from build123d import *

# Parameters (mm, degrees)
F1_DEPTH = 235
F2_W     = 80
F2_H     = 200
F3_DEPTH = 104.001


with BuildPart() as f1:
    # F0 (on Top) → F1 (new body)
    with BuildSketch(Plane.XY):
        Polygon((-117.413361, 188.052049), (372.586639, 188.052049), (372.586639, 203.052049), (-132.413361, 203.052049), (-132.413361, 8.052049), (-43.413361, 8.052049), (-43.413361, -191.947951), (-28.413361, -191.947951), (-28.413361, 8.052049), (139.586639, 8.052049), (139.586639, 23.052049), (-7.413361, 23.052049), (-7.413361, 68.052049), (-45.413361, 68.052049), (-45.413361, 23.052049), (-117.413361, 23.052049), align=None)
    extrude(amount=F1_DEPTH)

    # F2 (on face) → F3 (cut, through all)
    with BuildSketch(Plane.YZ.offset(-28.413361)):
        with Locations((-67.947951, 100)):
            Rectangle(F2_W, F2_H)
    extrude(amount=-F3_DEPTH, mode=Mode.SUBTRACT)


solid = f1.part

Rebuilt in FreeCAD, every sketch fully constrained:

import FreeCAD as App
import Part
import Sketcher

V = App.Vector

doc = App.newDocument("Part")
body = doc.addObject("PartDesign::Body", "Body")

sketch1 = doc.addObject("Sketcher::SketchObject", "Sketch")
body.addObject(sketch1)
sketch1.AttachmentSupport = (doc.XY_Plane, [""])
sketch1.MapMode = "FlatFace"
sketch1.addGeometry([
    Part.LineSegment(V(-117, 188, 0), V(373, 188, 0)),
    Part.LineSegment(V(373, 188, 0), V(373, 203, 0)),
    Part.LineSegment(V(373, 203, 0), V(-132, 203, 0)),
    Part.LineSegment(V(-132, 203, 0), V(-132, 8, 0)),
    Part.LineSegment(V(-132, 8, 0), V(-43, 8, 0)),
    Part.LineSegment(V(-43, 8, 0), V(-43, -192, 0)),
    Part.LineSegment(V(-43, -192, 0), V(-28, -192, 0)),
    Part.LineSegment(V(-28, -192, 0), V(-28, 8, 0)),
    Part.LineSegment(V(-28, 8, 0), V(140, 8, 0)),
    Part.LineSegment(V(140, 8, 0), V(140, 23, 0)),
    Part.LineSegment(V(140, 23, 0), V(-7, 23, 0)),
    Part.LineSegment(V(-7, 23, 0), V(-7, 68, 0)),
    Part.LineSegment(V(-7, 68, 0), V(-45, 68, 0)),
    Part.LineSegment(V(-45, 68, 0), V(-45, 23, 0)),
    Part.LineSegment(V(-45, 23, 0), V(-117, 23, 0)),
    Part.LineSegment(V(-117, 23, 0), V(-117, 188, 0)),
], False)
sketch1.addConstraint([
    Sketcher.Constraint("Coincident", 0, 2, 1, 1),
    Sketcher.Constraint("Coincident", 1, 2, 2, 1),
    Sketcher.Constraint("Coincident", 2, 2, 3, 1),
    Sketcher.Constraint("Coincident", 3, 2, 4, 1),
    Sketcher.Constraint("Coincident", 4, 2, 5, 1),
    Sketcher.Constraint("Coincident", 5, 2, 6, 1),
    Sketcher.Constraint("Coincident", 6, 2, 7, 1),
    Sketcher.Constraint("Coincident", 7, 2, 8, 1),
    Sketcher.Constraint("Coincident", 8, 2, 9, 1),
    Sketcher.Constraint("Coincident", 9, 2, 10, 1),
    Sketcher.Constraint("Coincident", 10, 2, 11, 1),
    Sketcher.Constraint("Coincident", 11, 2, 12, 1),
    Sketcher.Constraint("Coincident", 12, 2, 13, 1),
    Sketcher.Constraint("Coincident", 13, 2, 14, 1),
    Sketcher.Constraint("Coincident", 14, 2, 15, 1),
    Sketcher.Constraint("Coincident", 15, 2, 0, 1),
    Sketcher.Constraint("Horizontal", 0),
    Sketcher.Constraint("Vertical", 1),
    Sketcher.Constraint("Horizontal", 2),
    Sketcher.Constraint("Vertical", 3),
    Sketcher.Constraint("Horizontal", 4),
    Sketcher.Constraint("Vertical", 5),
    Sketcher.Constraint("Horizontal", 6),
    Sketcher.Constraint("Vertical", 7),
    Sketcher.Constraint("Horizontal", 8),
    Sketcher.Constraint("Vertical", 9),
    Sketcher.Constraint("Horizontal", 10),
    Sketcher.Constraint("Vertical", 11),
    Sketcher.Constraint("Horizontal", 12),
    Sketcher.Constraint("Vertical", 13),
    Sketcher.Constraint("Horizontal", 14),
    Sketcher.Constraint("Vertical", 15),
    Sketcher.Constraint("Horizontal", 4, 2, 7, 2),
    Sketcher.Constraint("Horizontal", 10, 2, 13, 2),
    Sketcher.Constraint("Equal", 6, 1),
    Sketcher.Constraint("Equal", 1, 9),
    Sketcher.Constraint("DistanceX", 0, 1, 0, 2, 490.0),
    Sketcher.Constraint("DistanceX", 2, 2, 2, 1, 505.0),
    Sketcher.Constraint("DistanceX", 4, 1, 4, 2, 89.0),
    Sketcher.Constraint("DistanceX", 6, 1, 6, 2, 15.0),
    Sketcher.Constraint("DistanceX", 8, 1, 8, 2, 168.0),
    Sketcher.Constraint("DistanceX", 10, 2, 10, 1, 147.0),
    Sketcher.Constraint("DistanceX", 12, 2, 12, 1, 38.0),
    Sketcher.Constraint("DistanceY", 3, 2, 3, 1, 195.0),
    Sketcher.Constraint("DistanceY", 5, 2, 5, 1, 200.0),
    Sketcher.Constraint("DistanceY", 11, 1, 11, 2, 45.0),
    Sketcher.Constraint("DistanceX", -1, 1, 0, 2, 372.586639),
    Sketcher.Constraint("DistanceY", -1, 1, 0, 2, 188.052049),
])
pad1 = doc.addObject("PartDesign::Pad", "Pad")
body.addObject(pad1)
pad1.Profile = sketch1
pad1.Length = 235

sketch2 = doc.addObject("Sketcher::SketchObject", "Sketch001")
body.addObject(sketch2)
sketch2.AttachmentSupport = (doc.YZ_Plane, [""])
sketch2.MapMode = "FlatFace"
sketch2.AttachmentOffset = App.Placement(V(0, 0, -28.413361), App.Rotation())
sketch2.addGeometry([
    Part.LineSegment(V(-108, 200, 0), V(-108, 0, 0)),
    Part.LineSegment(V(-108, 0, 0), V(-28, 0, 0)),
    Part.LineSegment(V(-28, 0, 0), V(-28, 200, 0)),
    Part.LineSegment(V(-28, 200, 0), V(-108, 200, 0)),
], False)
sketch2.addConstraint([
    Sketcher.Constraint("Coincident", 0, 2, 1, 1),
    Sketcher.Constraint("Coincident", 1, 2, 2, 1),
    Sketcher.Constraint("Coincident", 2, 2, 3, 1),
    Sketcher.Constraint("Coincident", 3, 2, 0, 1),
    Sketcher.Constraint("Vertical", 0),
    Sketcher.Constraint("Horizontal", 1),
    Sketcher.Constraint("Vertical", 2),
    Sketcher.Constraint("Horizontal", 3),
    Sketcher.Constraint("PointOnObject", 0, 2, -1),
    Sketcher.Constraint("DistanceX", 1, 1, 1, 2, 80.0),
    Sketcher.Constraint("DistanceY", 0, 2, 0, 1, 200.0),
    Sketcher.Constraint("DistanceX", 0, 2, -1, 1, 107.947951),
])
pocket1 = doc.addObject("PartDesign::Pocket", "Pocket")
body.addObject(pocket1)
pocket1.Profile = sketch2
pocket1.Type = "ThroughAll"

doc.recompute()
